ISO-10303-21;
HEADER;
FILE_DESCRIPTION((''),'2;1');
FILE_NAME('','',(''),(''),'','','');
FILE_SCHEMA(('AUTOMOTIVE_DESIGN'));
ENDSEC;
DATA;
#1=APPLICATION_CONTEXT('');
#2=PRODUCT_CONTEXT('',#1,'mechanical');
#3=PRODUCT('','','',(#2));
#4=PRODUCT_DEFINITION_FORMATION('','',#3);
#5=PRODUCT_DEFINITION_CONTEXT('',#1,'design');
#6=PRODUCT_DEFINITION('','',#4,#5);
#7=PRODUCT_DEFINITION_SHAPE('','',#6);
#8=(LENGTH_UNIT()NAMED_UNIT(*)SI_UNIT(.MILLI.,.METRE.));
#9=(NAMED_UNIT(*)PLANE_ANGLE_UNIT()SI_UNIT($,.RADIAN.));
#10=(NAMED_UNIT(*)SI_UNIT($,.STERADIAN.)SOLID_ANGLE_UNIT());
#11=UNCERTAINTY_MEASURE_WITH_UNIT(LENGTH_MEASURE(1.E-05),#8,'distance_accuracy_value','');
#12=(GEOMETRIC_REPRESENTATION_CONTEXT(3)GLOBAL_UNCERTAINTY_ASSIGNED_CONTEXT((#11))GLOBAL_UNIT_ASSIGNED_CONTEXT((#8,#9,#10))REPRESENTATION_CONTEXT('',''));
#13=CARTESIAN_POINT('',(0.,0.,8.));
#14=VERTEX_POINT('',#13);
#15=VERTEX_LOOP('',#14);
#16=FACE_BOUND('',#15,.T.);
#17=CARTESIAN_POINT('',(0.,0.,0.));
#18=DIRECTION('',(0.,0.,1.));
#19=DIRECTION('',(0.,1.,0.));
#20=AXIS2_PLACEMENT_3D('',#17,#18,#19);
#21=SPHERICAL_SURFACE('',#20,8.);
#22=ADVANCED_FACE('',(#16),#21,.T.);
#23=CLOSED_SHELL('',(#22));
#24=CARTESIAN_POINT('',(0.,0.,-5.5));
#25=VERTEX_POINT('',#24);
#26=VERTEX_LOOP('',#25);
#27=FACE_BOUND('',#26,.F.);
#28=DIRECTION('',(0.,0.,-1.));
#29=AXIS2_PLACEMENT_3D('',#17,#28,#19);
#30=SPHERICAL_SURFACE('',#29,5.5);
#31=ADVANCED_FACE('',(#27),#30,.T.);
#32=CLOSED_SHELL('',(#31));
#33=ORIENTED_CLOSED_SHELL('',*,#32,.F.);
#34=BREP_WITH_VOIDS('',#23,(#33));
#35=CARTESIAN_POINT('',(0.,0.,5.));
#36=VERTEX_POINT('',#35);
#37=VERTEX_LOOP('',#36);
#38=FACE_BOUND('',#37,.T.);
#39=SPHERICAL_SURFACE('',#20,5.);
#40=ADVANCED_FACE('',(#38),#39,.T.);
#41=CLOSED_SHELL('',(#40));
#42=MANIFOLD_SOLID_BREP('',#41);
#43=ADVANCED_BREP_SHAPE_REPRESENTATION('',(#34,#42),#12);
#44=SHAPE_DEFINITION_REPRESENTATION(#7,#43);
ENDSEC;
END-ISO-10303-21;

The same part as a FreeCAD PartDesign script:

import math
import FreeCAD as App
import Part
import Sketcher

V = App.Vector
Q = App.Units.Quantity

doc = App.newDocument("Part")
body = doc.addObject("PartDesign::Body", "Body")

sketch1 = body.newObject("Sketcher::SketchObject", "Sketch")
sketch1.AttachmentSupport = (doc.getObject("YZ_Plane"), [""])
sketch1.MapMode = "FlatFace"
sketch1.addGeometry([
    Part.LineSegment(V(0, 5, 0), V(0, -5, 0)),
    Part.ArcOfCircle(Part.Circle(V(0, 0, 0), V(0, 0, 1), 5), math.radians(-90), math.radians(90)),
], False)
sketch1.addConstraint([
    Sketcher.Constraint("Coincident", 0, 1, 1, 2),
    Sketcher.Constraint("Coincident", 1, 1, 0, 2),
    Sketcher.Constraint("Vertical", 0),
    Sketcher.Constraint("Coincident", 1, 3, -1, 1),
    Sketcher.Constraint("PointOnObject", 0, 1, -2),
    Sketcher.Constraint("Radius", 1, Q("5 mm")),
])
revolution = body.newObject("PartDesign::Revolution", "Revolution")
revolution.Profile = sketch1
revolution.ReferenceAxis = (sketch1, ["V_Axis"])
revolution.Angle = 360
body2 = doc.addObject("PartDesign::Body", "Body001")

sketch2 = body2.newObject("Sketcher::SketchObject", "Sketch001")
sketch2.AttachmentSupport = (doc.getObject("YZ_Plane001"), [""])
sketch2.MapMode = "FlatFace"
sketch2.addGeometry([
    Part.ArcOfCircle(Part.Circle(V(0, 0, 0), V(0, 0, 1), 5.5), math.radians(-90), math.radians(90)),
    Part.LineSegment(V(0, -5.5, 0), V(0, -8, 0)),
    Part.ArcOfCircle(Part.Circle(V(0, 0, 0), V(0, 0, 1), 8), math.radians(-90), math.radians(90)),
    Part.LineSegment(V(0, 8, 0), V(0, 5.5, 0)),
], False)
sketch2.addConstraint([
    Sketcher.Constraint("Coincident", 0, 1, 1, 1),
    Sketcher.Constraint("Coincident", 1, 2, 2, 1),
    Sketcher.Constraint("Coincident", 2, 2, 3, 1),
    Sketcher.Constraint("Coincident", 3, 2, 0, 2),
    Sketcher.Constraint("Vertical", 1),
    Sketcher.Constraint("Vertical", 3),
    Sketcher.Constraint("Coincident", 0, 3, -1, 1),
    Sketcher.Constraint("Coincident", 2, 3, -1, 1),
    Sketcher.Constraint("PointOnObject", 0, 1, -2),
    Sketcher.Constraint("PointOnObject", 2, 2, -2),
    Sketcher.Constraint("Radius", 2, Q("8 mm")),
    Sketcher.Constraint("Radius", 0, Q("5.5 mm")),
])
revolution2 = body2.newObject("PartDesign::Revolution", "Revolution001")
revolution2.Profile = sketch2
revolution2.ReferenceAxis = (sketch2, ["V_Axis"])
revolution2.Angle = 360

doc.recompute()
